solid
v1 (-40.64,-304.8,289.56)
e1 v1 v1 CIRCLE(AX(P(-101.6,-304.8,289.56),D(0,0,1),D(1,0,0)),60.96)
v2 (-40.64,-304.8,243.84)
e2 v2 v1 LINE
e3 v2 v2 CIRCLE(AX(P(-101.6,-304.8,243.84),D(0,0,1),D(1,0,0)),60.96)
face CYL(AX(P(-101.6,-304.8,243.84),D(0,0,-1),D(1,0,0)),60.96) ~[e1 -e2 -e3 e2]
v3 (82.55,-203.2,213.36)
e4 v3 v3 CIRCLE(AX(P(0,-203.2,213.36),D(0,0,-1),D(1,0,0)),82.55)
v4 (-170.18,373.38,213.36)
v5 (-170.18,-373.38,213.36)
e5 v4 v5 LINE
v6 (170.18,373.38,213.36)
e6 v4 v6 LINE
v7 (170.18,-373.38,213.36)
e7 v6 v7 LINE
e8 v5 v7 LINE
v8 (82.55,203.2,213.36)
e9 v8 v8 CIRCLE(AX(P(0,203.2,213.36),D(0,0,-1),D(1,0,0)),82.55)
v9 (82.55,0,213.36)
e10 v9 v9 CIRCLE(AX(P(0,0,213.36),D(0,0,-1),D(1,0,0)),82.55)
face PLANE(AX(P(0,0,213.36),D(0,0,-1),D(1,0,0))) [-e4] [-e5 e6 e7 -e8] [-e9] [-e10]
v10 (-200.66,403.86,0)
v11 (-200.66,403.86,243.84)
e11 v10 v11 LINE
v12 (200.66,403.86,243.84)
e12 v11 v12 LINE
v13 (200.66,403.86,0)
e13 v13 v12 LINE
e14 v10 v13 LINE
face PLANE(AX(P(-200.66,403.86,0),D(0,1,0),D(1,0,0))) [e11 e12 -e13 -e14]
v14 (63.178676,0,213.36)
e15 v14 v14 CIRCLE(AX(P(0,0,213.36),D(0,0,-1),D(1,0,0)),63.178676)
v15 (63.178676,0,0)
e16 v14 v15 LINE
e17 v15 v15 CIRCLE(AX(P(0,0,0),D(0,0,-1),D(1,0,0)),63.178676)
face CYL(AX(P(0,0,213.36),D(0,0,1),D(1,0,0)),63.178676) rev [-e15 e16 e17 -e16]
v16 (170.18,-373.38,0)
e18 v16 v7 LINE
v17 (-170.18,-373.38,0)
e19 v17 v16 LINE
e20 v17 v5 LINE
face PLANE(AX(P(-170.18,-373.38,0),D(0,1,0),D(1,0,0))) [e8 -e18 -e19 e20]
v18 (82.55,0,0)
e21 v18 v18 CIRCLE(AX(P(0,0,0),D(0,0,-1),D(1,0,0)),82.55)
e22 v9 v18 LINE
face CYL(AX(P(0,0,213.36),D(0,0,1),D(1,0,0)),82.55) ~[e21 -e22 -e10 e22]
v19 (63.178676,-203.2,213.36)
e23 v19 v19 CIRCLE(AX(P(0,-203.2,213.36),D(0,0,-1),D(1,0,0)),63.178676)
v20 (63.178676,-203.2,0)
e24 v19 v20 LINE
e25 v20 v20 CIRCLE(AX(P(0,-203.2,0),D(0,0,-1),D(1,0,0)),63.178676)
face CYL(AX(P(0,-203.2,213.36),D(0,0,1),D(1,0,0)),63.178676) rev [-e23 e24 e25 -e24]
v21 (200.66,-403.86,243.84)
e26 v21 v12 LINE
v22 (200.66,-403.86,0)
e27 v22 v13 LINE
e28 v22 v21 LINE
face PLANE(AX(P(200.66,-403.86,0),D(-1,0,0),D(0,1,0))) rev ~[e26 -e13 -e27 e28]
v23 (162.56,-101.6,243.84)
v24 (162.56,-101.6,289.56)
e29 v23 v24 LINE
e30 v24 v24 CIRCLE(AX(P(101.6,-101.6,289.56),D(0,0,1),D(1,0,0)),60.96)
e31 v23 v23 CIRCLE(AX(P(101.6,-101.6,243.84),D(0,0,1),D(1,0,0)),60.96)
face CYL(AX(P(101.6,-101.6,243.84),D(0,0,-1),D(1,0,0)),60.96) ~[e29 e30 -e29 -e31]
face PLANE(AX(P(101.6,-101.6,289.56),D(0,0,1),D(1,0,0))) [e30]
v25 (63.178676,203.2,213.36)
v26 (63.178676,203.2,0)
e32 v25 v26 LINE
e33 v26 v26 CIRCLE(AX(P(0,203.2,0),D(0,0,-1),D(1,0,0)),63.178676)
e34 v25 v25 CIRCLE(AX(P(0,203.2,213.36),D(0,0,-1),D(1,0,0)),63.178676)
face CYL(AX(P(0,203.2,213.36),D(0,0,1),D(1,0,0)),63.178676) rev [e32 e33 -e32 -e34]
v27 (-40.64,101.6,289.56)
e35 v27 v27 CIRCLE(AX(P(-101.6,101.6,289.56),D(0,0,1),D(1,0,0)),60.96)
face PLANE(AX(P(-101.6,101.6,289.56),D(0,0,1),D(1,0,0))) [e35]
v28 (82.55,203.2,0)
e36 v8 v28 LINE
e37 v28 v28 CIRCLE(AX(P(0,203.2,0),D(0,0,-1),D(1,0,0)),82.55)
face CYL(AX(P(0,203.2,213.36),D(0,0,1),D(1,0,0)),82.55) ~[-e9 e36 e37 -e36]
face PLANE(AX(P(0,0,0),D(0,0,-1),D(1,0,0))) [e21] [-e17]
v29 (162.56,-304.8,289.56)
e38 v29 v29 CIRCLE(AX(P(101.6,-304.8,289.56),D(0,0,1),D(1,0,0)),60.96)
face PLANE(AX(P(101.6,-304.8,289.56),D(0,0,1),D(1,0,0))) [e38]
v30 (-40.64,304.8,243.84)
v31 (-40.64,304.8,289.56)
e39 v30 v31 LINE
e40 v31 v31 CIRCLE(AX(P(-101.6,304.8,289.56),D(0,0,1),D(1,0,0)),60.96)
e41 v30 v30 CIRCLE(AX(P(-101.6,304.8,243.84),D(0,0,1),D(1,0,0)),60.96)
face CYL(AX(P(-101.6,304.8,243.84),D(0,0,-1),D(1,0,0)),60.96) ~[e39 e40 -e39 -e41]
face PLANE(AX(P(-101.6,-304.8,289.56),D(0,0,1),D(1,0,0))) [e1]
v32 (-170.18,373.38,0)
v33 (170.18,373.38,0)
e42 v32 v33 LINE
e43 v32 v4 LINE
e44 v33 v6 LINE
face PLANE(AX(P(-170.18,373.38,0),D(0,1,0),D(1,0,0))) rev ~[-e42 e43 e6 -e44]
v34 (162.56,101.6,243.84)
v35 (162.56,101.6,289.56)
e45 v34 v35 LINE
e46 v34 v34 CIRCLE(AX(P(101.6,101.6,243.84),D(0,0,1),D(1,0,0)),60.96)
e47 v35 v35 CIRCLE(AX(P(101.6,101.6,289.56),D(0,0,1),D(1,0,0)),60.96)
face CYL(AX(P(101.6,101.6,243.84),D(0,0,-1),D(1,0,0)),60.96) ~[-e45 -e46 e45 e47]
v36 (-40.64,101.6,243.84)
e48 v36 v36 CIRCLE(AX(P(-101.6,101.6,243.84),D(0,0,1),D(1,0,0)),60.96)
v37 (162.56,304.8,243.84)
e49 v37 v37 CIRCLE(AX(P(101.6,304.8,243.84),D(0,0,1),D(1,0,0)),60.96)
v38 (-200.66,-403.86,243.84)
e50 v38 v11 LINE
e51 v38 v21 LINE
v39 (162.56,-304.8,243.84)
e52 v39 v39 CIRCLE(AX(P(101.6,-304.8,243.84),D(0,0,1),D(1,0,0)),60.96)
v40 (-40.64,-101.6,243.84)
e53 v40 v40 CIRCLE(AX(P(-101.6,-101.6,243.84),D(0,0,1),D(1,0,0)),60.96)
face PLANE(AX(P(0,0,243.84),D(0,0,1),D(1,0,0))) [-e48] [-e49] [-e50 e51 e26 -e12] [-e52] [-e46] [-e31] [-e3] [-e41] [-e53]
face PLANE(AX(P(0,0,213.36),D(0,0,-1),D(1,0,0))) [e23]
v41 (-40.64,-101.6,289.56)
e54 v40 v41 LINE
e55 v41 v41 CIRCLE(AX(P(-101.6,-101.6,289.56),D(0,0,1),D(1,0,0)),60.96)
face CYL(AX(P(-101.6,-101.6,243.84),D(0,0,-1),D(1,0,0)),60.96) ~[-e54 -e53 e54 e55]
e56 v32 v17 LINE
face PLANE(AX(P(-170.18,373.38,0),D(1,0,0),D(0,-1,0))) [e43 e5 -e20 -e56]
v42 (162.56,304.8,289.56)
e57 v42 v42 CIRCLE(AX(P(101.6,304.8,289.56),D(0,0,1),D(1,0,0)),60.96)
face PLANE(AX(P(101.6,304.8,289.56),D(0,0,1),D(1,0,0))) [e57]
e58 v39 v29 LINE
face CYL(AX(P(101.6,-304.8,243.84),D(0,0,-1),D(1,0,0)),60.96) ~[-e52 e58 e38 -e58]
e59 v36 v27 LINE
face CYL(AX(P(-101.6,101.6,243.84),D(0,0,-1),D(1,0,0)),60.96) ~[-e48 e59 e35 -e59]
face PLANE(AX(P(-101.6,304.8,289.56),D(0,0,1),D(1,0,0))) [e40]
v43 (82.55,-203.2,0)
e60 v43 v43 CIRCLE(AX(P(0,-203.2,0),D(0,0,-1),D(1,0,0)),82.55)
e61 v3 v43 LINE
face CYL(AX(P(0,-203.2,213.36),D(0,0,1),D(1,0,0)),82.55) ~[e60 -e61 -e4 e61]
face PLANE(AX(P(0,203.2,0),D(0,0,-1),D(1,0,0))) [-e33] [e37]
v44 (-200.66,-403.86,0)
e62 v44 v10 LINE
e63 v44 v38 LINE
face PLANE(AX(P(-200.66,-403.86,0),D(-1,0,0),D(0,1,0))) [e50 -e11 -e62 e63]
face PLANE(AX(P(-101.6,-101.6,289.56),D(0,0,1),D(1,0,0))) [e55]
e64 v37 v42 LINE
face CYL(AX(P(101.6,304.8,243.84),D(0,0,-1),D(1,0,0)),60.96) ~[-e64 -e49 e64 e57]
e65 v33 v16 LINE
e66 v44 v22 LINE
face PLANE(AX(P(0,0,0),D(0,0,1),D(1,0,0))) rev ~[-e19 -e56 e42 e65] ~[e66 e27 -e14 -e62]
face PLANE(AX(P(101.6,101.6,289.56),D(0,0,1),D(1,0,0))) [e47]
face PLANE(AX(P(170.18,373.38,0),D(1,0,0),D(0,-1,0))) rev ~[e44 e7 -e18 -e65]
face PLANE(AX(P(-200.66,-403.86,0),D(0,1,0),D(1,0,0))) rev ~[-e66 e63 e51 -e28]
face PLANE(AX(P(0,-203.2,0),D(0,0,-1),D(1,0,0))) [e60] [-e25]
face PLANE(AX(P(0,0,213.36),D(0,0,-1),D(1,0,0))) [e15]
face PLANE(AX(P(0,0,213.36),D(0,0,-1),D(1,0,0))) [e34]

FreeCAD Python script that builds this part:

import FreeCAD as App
import Part
import Sketcher
from FreeCAD import Vector
Q = App.Units.Quantity


def add_polygon(sketch, points):
    """Adds a closed chain of lines whose ends are joined by coincident constraints."""
    first, n = sketch.GeometryCount, len(points)
    for a, b in zip(points, points[1:] + points[:1]):
        sketch.addGeometry(Part.LineSegment(App.Vector(*a, 0), App.Vector(*b, 0)), False)
    for i in range(n):
        sketch.addConstraint(Sketcher.Constraint("Coincident", first + i, 2, first + (i + 1) % n, 1))

doc = App.newDocument("Part")
body = doc.addObject("PartDesign::Body", "Body")

# Sketch on XY plane
sketch1 = doc.addObject("Sketcher::SketchObject", "Sketch")
body.addObject(sketch1)
sketch1.AttachmentSupport = (doc.XY_Plane, [""])
sketch1.MapMode = "FlatFace"
add_polygon(sketch1, [(-200.66, 403.86), (-200.66, -403.86), (200.66, -403.86), (200.66, 403.86)])  # lines 0-3
sketch1.addConstraint([
    Sketcher.Constraint("Vertical", 0),
    Sketcher.Constraint("Horizontal", 1),
    Sketcher.Constraint("Vertical", 2),
    Sketcher.Constraint("Horizontal", 3),
    Sketcher.Constraint("Symmetric", 0, 2, 2, 2, -1, 1),
    Sketcher.Constraint("DistanceX", 1, 1, 1, 2, Q("15.8 in")),
    Sketcher.Constraint("DistanceY", 0, 2, 0, 1, Q("31.8 in")),
])
pad1 = doc.addObject("PartDesign::Pad", "Pad")
body.addObject(pad1)
pad1.Profile = sketch1
pad1.Length = Q("9.6 in")

# Sketch on XY plane
sketch2 = doc.addObject("Sketcher::SketchObject", "Sketch001")
body.addObject(sketch2)
sketch2.AttachmentSupport = (doc.XY_Plane, [""])
sketch2.MapMode = "FlatFace"
sketch2.AttachmentOffset = App.Placement(Vector(0, 0, 9.6 * 25.4), App.Rotation())
sketch2.addGeometry([
    Part.Circle(Vector(101.6, 304.8, 0), Vector(0, 0, 1), 60.96),  # 0
    Part.Circle(Vector(101.6, 101.6, 0), Vector(0, 0, 1), 60.96),  # 1
    Part.Circle(Vector(101.6, -101.6, 0), Vector(0, 0, 1), 60.96),  # 2
    Part.Circle(Vector(101.6, -304.8, 0), Vector(0, 0, 1), 60.96),  # 3
    Part.Circle(Vector(-101.6, 304.8, 0), Vector(0, 0, 1), 60.96),  # 4
    Part.Circle(Vector(-101.6, 101.6, 0), Vector(0, 0, 1), 60.96),  # 5
    Part.Circle(Vector(-101.6, -101.6, 0), Vector(0, 0, 1), 60.96),  # 6
    Part.Circle(Vector(-101.6, -304.8, 0), Vector(0, 0, 1), 60.96),  # 7
], False)
sketch2.addConstraint([
    Sketcher.Constraint("Equal", 0, 1),
    Sketcher.Constraint("Equal", 1, 2),
    Sketcher.Constraint("Equal", 2, 3),
    Sketcher.Constraint("Equal", 3, 4),
    Sketcher.Constraint("Equal", 4, 5),
    Sketcher.Constraint("Equal", 5, 6),
    Sketcher.Constraint("Equal", 6, 7),
    Sketcher.Constraint("Symmetric", 3, 3, 4, 3, -1, 1),
    Sketcher.Constraint("Symmetric", 2, 3, 5, 3, -1, 1),
    Sketcher.Constraint("Symmetric", 1, 3, 6, 3, -1, 1),
    Sketcher.Constraint("Symmetric", 0, 3, 7, 3, -1, 1),
    Sketcher.Constraint("Symmetric", 0, 3, 4, 3, -2),
    Sketcher.Constraint("Symmetric", 1, 3, 5, 3, -2),
    Sketcher.Constraint("Vertical", 0, 3, 1, 3),
    Sketcher.Constraint("Diameter", 0, Q("4.8 in")),
    Sketcher.Constraint("DistanceX", -1, 1, 0, 3, Q("4 in")),
    Sketcher.Constraint("DistanceY", -1, 1, 0, 3, Q("12 in")),
    Sketcher.Constraint("DistanceY", -1, 1, 1, 3, Q("4 in")),
])
pad2 = doc.addObject("PartDesign::Pad", "Pad001")
body.addObject(pad2)
pad2.Profile = sketch2
pad2.Length = Q("1.8 in")

# Sketch on XY plane
sketch3 = doc.addObject("Sketcher::SketchObject", "Sketch002")
body.addObject(sketch3)
sketch3.AttachmentSupport = (doc.XY_Plane, [""])
sketch3.MapMode = "FlatFace"
add_polygon(sketch3, [(-170.18, -373.38), (-170.18, 373.38), (170.18, 373.38), (170.18, -373.38)])  # lines 0-3
sketch3.addConstraint([
    Sketcher.Constraint("Vertical", 0),
    Sketcher.Constraint("Horizontal", 1),
    Sketcher.Constraint("Vertical", 2),
    Sketcher.Constraint("Horizontal", 3),
    Sketcher.Constraint("Symmetric", 0, 2, 2, 2, -1, 1),
    Sketcher.Constraint("DistanceX", 1, 1, 1, 2, Q("13.4 in")),
    Sketcher.Constraint("DistanceY", 0, 1, 0, 2, Q("29.4 in")),
])
pocket1 = doc.addObject("PartDesign::Pocket", "Pocket")
body.addObject(pocket1)
pocket1.Profile = sketch3
pocket1.Length = Q("8.4 in")
pocket1.Reversed = True

# Sketch on XY plane
sketch4 = doc.addObject("Sketcher::SketchObject", "Sketch003")
body.addObject(sketch4)
sketch4.AttachmentSupport = (doc.XY_Plane, [""])
sketch4.MapMode = "FlatFace"
sketch4.AttachmentOffset = App.Placement(Vector(0, 0, 8.4 * 25.4), App.Rotation())
sketch4.addGeometry([
    Part.Circle(Vector(0, 0, 0), Vector(0, 0, 1), 82.55),  # 0
    Part.Circle(Vector(0, 0, 0), Vector(0, 0, 1), 63.178676),  # 1
    Part.Circle(Vector(0, -203.2, 0), Vector(0, 0, 1), 82.55),  # 2
    Part.Circle(Vector(0, -203.2, 0), Vector(0, 0, 1), 63.178676),  # 3
    Part.Circle(Vector(0, 203.2, 0), Vector(0, 0, 1), 82.55),  # 4
    Part.Circle(Vector(0, 203.2, 0), Vector(0, 0, 1), 63.178676),  # 5
], False)
sketch4.addConstraint([
    Sketcher.Constraint("Coincident", 0, 3, -1, 1),
    Sketcher.Constraint("Coincident", 1, 3, -1, 1),
    Sketcher.Constraint("Coincident", 3, 3, 2, 3),
    Sketcher.Constraint("Coincident", 5, 3, 4, 3),
    Sketcher.Constraint("Equal", 0, 2),
    Sketcher.Constraint("Equal", 1, 3),
    Sketcher.Constraint("Equal", 2, 4),
    Sketcher.Constraint("Equal", 3, 5),
    Sketcher.Constraint("Symmetric", 2, 3, 4, 3, -1, 1),
    Sketcher.Constraint("PointOnObject", 2, 3, -2),
    Sketcher.Constraint("Diameter", 0, Q("6.5 in")),
    Sketcher.Constraint("DistanceY", 2, 3, -1, 1, Q("8 in")),
    Sketcher.Constraint("Diameter", 1, Q("126.357352 mm")),
])
pad3 = doc.addObject("PartDesign::Pad", "Pad002")
body.addObject(pad3)
pad3.Profile = sketch4
pad3.Length = Q("8.4 in")
pad3.Reversed = True

doc.recompute()
